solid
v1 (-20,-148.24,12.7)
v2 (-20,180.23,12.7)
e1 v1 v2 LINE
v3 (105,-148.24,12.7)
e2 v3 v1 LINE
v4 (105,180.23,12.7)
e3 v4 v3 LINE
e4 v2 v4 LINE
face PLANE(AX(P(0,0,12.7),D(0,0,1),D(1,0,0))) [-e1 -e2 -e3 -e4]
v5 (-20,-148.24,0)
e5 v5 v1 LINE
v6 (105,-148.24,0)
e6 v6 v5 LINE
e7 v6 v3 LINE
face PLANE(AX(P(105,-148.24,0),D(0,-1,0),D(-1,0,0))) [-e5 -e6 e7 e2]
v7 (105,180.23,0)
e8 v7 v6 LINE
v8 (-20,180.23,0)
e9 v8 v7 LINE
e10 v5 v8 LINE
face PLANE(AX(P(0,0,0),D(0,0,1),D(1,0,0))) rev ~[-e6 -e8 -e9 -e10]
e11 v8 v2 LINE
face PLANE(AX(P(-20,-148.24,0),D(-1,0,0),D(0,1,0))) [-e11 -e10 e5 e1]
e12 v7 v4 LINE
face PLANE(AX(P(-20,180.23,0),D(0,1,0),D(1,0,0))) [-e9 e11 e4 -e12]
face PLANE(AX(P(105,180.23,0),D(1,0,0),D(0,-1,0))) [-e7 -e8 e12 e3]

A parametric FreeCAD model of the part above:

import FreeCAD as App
import Part
import Sketcher
from FreeCAD import Vector
Q = App.Units.Quantity


def add_polygon(sketch, points):
    """Adds a closed chain of lines whose ends are joined by coincident constraints."""
    first, n = sketch.GeometryCount, len(points)
    for a, b in zip(points, points[1:] + points[:1]):
        sketch.addGeometry(Part.LineSegment(App.Vector(*a, 0), App.Vector(*b, 0)), False)
    for i in range(n):
        sketch.addConstraint(Sketcher.Constraint("Coincident", first + i, 2, first + (i + 1) % n, 1))

doc = App.newDocument("Part")
body = doc.addObject("PartDesign::Body", "Body")

sketch1 = body.newObject("Sketcher::SketchObject", "Sketch")
sketch1.AttachmentSupport = (doc.getObject("XY_Plane"), [""])
sketch1.MapMode = "FlatFace"
add_polygon(sketch1, [(105, 180), (-20, 180), (-20, -148), (105, -148)])
sketch1.addConstraint([
    Sketcher.Constraint("Horizontal", 0),
    Sketcher.Constraint("Vertical", 1),
    Sketcher.Constraint("Horizontal", 2),
    Sketcher.Constraint("Vertical", 3),
    Sketcher.Constraint("DistanceX", 0, 2, 0, 1, Q("125 mm")),
    Sketcher.Constraint("DistanceY", 1, 2, 1, 1, Q("328.47 mm")),
    Sketcher.Constraint("DistanceX", 0, 2, -1, 1, Q("20 mm")),
    Sketcher.Constraint("DistanceY", -1, 1, 0, 2, Q("180.23 mm")),
])
pad1 = body.newObject("PartDesign::Pad", "Pad")
pad1.Profile = sketch1
pad1.Length = 12.7

doc.recompute()
